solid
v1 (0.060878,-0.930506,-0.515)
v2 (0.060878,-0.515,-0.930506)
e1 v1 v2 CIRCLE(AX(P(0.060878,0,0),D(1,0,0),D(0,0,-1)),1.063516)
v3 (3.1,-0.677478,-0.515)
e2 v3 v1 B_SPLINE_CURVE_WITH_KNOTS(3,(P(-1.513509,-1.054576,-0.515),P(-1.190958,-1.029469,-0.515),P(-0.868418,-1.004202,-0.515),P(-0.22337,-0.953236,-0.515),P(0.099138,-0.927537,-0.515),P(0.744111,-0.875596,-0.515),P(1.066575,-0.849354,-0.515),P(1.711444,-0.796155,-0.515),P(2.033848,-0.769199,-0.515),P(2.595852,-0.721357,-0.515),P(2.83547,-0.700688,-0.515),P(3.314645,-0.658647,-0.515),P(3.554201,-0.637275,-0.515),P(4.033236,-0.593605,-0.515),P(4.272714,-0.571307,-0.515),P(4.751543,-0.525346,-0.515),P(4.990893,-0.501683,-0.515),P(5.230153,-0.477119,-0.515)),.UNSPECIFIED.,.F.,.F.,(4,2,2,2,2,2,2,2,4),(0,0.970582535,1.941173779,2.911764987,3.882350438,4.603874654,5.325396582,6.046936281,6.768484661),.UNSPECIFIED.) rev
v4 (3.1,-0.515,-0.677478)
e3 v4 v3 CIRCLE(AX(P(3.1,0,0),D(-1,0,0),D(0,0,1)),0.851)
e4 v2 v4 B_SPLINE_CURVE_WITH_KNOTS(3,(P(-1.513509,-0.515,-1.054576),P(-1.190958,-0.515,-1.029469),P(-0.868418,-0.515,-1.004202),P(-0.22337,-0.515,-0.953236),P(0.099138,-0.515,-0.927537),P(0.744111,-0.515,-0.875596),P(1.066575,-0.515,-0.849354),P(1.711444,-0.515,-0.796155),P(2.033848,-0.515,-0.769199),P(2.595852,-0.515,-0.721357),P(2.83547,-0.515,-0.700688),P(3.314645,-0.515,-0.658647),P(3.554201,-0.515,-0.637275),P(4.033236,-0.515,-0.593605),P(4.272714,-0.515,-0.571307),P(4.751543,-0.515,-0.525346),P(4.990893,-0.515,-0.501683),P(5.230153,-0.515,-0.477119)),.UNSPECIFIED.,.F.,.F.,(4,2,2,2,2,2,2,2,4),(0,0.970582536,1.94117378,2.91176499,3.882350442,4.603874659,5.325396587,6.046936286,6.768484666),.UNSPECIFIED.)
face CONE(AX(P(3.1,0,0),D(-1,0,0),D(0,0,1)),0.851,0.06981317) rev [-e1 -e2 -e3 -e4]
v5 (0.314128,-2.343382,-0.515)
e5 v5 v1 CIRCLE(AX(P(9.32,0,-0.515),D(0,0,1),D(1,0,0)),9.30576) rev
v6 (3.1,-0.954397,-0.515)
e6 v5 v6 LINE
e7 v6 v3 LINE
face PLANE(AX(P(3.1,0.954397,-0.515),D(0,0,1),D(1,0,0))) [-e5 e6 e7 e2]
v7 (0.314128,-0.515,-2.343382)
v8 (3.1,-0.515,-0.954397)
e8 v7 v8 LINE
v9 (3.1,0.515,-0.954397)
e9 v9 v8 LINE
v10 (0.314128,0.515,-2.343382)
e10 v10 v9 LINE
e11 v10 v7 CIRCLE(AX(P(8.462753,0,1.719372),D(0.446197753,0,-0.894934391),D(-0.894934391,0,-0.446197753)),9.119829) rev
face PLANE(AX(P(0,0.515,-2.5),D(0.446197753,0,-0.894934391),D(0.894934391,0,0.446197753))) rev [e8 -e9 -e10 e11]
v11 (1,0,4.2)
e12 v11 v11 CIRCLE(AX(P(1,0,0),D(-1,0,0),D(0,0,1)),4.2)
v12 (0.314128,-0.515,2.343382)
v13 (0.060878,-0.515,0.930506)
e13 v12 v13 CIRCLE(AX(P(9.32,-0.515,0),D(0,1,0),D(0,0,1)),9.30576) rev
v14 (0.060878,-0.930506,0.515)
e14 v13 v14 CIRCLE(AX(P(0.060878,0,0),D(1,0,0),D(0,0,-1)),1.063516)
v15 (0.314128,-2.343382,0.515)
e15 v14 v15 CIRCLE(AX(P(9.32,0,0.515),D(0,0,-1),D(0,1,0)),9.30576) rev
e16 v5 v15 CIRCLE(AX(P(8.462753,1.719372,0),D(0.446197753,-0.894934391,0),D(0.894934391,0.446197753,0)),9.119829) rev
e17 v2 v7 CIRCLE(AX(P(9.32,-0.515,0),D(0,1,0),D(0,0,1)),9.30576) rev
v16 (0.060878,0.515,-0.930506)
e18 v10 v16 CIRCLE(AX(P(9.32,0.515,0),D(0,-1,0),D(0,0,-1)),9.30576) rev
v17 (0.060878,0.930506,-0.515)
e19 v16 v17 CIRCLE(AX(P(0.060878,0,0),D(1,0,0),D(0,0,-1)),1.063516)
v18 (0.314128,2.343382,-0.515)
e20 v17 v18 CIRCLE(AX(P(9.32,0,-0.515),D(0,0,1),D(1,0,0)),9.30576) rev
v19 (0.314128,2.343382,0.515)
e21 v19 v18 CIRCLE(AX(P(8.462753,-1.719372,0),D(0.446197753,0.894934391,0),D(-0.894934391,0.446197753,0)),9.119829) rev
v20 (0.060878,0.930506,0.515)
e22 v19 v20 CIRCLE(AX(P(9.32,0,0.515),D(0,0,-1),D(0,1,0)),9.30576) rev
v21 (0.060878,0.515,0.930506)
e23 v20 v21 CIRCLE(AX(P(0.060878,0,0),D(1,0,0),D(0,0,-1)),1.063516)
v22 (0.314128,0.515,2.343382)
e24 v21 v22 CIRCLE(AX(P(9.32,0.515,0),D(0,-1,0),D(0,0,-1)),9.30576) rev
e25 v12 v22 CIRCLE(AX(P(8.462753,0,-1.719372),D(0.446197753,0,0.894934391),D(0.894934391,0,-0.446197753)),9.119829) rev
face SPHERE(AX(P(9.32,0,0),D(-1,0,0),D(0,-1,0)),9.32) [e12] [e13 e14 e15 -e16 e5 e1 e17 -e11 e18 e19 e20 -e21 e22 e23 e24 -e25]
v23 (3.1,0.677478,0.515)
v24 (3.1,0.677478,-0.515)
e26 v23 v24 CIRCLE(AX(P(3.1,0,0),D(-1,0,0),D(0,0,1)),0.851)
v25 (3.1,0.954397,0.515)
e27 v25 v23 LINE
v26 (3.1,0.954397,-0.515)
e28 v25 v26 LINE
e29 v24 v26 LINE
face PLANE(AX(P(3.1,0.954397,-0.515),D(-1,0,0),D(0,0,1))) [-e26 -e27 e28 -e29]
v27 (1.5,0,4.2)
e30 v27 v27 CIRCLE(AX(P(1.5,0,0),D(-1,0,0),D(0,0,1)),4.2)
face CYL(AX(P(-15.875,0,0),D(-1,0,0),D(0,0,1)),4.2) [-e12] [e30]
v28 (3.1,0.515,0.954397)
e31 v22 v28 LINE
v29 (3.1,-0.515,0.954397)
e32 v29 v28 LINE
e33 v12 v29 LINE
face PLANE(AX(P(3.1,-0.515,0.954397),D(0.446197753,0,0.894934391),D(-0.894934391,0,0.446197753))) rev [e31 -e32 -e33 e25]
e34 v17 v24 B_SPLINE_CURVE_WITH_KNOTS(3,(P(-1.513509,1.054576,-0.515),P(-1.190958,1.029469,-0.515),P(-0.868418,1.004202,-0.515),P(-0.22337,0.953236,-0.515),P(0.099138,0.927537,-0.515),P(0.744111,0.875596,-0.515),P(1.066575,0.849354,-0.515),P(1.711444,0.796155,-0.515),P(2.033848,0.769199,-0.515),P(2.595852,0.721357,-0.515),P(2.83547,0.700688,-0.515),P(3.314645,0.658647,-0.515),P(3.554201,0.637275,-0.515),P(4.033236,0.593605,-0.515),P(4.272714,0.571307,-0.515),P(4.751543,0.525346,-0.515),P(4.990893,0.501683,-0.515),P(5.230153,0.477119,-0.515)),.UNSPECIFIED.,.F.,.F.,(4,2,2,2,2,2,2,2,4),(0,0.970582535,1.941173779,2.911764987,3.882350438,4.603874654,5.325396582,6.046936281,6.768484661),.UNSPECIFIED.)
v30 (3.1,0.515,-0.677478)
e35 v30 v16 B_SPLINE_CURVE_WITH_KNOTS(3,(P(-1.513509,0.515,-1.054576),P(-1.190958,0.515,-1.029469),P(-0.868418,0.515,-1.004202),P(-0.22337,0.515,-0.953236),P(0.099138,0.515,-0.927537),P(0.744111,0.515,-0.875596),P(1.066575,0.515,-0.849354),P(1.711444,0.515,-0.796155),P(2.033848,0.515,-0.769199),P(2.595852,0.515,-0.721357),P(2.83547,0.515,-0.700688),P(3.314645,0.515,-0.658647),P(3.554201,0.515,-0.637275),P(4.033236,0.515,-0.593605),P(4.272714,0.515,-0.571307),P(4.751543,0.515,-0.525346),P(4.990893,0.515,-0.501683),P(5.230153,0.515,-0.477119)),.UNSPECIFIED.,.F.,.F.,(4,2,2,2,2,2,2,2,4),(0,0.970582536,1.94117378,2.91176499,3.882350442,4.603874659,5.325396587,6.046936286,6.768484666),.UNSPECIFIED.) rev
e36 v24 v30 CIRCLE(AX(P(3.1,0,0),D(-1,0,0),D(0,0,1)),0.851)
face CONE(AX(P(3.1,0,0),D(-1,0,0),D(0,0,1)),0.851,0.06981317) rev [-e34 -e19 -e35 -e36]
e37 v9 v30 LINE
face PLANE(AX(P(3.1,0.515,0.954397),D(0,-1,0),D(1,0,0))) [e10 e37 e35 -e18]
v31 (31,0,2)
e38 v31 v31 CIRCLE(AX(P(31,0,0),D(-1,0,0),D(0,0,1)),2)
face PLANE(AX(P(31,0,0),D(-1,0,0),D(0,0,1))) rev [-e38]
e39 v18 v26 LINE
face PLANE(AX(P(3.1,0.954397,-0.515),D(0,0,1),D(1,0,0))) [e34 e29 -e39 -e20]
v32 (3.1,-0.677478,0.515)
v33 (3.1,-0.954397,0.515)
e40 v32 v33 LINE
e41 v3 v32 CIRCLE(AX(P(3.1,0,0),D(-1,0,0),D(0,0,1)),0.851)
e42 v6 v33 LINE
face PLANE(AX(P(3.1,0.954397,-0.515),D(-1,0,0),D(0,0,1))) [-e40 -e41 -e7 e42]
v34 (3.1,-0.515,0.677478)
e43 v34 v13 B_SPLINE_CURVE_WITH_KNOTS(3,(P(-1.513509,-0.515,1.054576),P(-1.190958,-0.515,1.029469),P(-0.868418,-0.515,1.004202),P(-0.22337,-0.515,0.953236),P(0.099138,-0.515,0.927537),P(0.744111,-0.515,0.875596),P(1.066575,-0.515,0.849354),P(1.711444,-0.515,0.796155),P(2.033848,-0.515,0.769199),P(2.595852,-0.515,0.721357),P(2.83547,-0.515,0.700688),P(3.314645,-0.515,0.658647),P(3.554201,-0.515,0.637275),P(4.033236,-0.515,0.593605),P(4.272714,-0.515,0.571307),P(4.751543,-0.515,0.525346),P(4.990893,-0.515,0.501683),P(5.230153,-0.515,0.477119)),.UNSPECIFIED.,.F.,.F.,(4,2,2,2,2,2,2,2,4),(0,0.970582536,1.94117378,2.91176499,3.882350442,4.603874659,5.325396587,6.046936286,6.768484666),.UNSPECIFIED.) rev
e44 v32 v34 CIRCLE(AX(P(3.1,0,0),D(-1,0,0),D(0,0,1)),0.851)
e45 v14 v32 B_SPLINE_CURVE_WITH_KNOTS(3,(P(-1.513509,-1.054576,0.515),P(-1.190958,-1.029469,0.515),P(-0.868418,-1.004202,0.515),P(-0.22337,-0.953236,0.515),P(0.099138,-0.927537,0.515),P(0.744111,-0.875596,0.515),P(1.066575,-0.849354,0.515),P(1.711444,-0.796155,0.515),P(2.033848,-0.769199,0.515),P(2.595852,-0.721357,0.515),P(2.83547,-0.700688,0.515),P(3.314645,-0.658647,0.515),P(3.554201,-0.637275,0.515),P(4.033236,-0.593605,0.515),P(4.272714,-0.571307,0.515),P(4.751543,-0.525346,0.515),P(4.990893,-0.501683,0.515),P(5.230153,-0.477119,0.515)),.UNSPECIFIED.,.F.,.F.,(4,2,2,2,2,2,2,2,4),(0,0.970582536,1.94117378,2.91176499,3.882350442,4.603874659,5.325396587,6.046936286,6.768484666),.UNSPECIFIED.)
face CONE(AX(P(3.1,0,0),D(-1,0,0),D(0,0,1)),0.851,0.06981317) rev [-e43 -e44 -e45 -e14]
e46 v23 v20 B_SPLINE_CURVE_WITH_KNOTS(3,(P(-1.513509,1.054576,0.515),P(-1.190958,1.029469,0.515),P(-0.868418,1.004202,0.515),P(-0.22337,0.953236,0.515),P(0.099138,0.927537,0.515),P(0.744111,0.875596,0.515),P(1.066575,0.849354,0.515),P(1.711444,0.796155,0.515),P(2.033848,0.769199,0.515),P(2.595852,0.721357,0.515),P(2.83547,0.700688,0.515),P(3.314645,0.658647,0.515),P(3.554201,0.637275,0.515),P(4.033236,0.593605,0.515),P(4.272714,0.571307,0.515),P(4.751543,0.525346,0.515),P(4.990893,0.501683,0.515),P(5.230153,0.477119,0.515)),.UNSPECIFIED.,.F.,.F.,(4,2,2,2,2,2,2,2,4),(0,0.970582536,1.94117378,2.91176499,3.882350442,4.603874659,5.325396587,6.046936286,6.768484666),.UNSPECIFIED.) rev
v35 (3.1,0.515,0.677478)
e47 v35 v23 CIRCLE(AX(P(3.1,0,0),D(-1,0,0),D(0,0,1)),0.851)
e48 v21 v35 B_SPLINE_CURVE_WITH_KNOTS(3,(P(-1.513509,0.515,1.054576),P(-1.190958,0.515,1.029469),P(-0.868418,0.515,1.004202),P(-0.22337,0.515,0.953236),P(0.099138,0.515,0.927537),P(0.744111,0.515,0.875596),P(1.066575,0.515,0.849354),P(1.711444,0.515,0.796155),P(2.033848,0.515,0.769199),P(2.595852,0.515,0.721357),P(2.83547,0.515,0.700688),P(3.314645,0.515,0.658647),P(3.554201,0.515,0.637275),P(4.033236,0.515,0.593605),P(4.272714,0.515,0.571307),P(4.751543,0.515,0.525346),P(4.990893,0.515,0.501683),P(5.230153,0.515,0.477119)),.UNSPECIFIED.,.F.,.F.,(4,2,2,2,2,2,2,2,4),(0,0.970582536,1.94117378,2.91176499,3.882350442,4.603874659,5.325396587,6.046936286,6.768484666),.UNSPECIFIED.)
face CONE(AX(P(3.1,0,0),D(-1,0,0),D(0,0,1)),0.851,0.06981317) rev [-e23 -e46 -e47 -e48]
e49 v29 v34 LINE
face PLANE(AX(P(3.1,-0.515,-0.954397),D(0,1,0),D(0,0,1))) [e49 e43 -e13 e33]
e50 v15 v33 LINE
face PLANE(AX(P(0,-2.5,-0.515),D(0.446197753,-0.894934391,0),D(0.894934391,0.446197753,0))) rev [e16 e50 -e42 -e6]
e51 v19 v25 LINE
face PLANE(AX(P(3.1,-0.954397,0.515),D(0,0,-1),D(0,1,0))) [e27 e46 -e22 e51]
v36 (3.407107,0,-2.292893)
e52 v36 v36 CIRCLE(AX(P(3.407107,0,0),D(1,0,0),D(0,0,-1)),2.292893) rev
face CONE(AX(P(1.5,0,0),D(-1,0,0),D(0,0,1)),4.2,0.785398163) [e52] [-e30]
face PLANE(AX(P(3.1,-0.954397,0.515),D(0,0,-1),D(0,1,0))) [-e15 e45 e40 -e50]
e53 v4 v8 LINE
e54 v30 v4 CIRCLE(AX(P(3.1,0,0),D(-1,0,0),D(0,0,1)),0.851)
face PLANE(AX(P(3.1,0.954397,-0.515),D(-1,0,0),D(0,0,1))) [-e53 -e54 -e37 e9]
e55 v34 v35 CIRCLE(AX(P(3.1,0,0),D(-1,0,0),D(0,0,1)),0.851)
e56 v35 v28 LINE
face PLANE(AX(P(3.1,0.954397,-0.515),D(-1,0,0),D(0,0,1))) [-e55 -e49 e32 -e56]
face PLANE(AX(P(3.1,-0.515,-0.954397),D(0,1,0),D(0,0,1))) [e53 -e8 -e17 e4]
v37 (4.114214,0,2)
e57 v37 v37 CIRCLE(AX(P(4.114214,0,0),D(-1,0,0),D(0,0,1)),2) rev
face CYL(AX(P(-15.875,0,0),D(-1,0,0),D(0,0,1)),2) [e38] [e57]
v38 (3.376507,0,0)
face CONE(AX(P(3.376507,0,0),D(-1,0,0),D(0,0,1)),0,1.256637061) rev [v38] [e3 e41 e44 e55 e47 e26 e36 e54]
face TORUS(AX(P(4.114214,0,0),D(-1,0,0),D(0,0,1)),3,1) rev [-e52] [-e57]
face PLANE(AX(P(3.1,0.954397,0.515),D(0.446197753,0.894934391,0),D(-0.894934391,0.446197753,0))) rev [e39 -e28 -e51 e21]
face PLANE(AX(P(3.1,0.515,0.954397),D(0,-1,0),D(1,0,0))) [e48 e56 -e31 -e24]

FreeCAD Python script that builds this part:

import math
import FreeCAD as App
import Part
import Sketcher

V = App.Vector
Q = App.Units.Quantity


def edges_at(feature, points):
    """Names of the edges that pass closest to the given points."""
    edges = feature.Shape.Edges
    near = lambda p: min(range(len(edges)), key=lambda i: edges[i].distToShape(Part.Vertex(*p))[0])
    return sorted({f"Edge{near(p) + 1}" for p in points})


def add_polygon(sketch, points):
    """Adds a closed chain of lines whose ends are joined by coincident constraints."""
    first, n = sketch.GeometryCount, len(points)
    for a, b in zip(points, points[1:] + points[:1]):
        sketch.addGeometry(Part.LineSegment(App.Vector(*a, 0), App.Vector(*b, 0)), False)
    for i in range(n):
        sketch.addConstraint(Sketcher.Constraint("Coincident", first + i, 2, first + (i + 1) % n, 1))

doc = App.newDocument("Part")
body = doc.addObject("PartDesign::Body", "Body")

# Sketch on XY plane
sketch1 = body.newObject("Sketcher::SketchObject", "Sketch")
sketch1.AttachmentSupport = (doc.getObject("XY_Plane"), [""])
sketch1.MapMode = "FlatFace"
sketch1.addGeometry([
    Part.LineSegment(V(0, 0, 0), V(31, 0, 0)),  # 0
    Part.LineSegment(V(31, 0, 0), V(31, 2, 0)),  # 1
    Part.LineSegment(V(31, 2, 0), V(3.7, 2, 0)),  # 2
    Part.LineSegment(V(3.7, 2, 0), V(1.5, 4.2, 0)),  # 3
    Part.LineSegment(V(1.5, 4.2, 0), V(1, 4.2, 0)),  # 4
    Part.ArcOfCircle(Part.Circle(V(9.32, 0, 0), V(0, 0, 1), 9.32), math.radians(153.215004), math.radians(180)),  # 5
], False)
sketch1.addConstraint([
    Sketcher.Constraint("Coincident", 0, 2, 1, 1),
    Sketcher.Constraint("Coincident", 1, 2, 2, 1),
    Sketcher.Constraint("Coincident", 2, 2, 3, 1),
    Sketcher.Constraint("Coincident", 3, 2, 4, 1),
    Sketcher.Constraint("Coincident", 4, 2, 5, 1),
    Sketcher.Constraint("Coincident", 5, 2, 0, 1),
    Sketcher.Constraint("Horizontal", 0),
    Sketcher.Constraint("Vertical", 1),
    Sketcher.Constraint("Horizontal", 2),
    Sketcher.Constraint("Horizontal", 4),
    Sketcher.Constraint("Coincident", 5, 2, -1, 1),
    Sketcher.Constraint("PointOnObject", 5, 3, -1),
    Sketcher.Constraint("DistanceX", 0, 1, 0, 2, 31.0),
    Sketcher.Constraint("DistanceY", 1, 1, 1, 2, 2.0),
    Sketcher.Constraint("Angle", 3, Q("135 deg")),
    Sketcher.Constraint("Radius", 5, 9.32),
    Sketcher.Constraint("DistanceX", 2, 2, 2, 1, 27.3),
    Sketcher.Constraint("DistanceX", 4, 2, 4, 1, 0.5),
])
revolution = body.newObject("PartDesign::Revolution", "Revolution")
revolution.Profile = sketch1
revolution.ReferenceAxis = (sketch1, ["H_Axis"])
revolution.Angle = 360
doc.recompute()

fillet = body.newObject("PartDesign::Fillet", "Fillet")
fillet.Base = (revolution, edges_at(revolution, [(3.7, 0, -2)]))
fillet.Radius = 1

# Sketch on YZ plane
sketch2 = body.newObject("Sketcher::SketchObject", "Sketch001")
sketch2.AttachmentSupport = (doc.getObject("YZ_Plane"), [""])
sketch2.MapMode = "FlatFace"
add_polygon(sketch2, [(-2.5, 0.515), (-2.5, -0.515), (2.5, -0.515), (2.5, 0.515)])  # lines 0-3
sketch2.addConstraint([
    Sketcher.Constraint("Vertical", 0),
    Sketcher.Constraint("Horizontal", 1),
    Sketcher.Constraint("Vertical", 2),
    Sketcher.Constraint("Horizontal", 3),
    Sketcher.Constraint("Symmetric", 0, 2, 2, 2, -1, 1),
    Sketcher.Constraint("DistanceX", 1, 1, 1, 2, 5.0),
    Sketcher.Constraint("DistanceY", 0, 2, 0, 1, 1.03),
])

# Sketch on YZ plane
sketch3 = body.newObject("Sketcher::SketchObject", "Sketch002")
sketch3.AttachmentSupport = (doc.getObject("YZ_Plane"), [""])
sketch3.MapMode = "FlatFace"
sketch3.AttachmentOffset = App.Placement(V(0, 0, 3.1), App.Rotation())
add_polygon(sketch3, [(-0.954397, 0.515), (-0.954397, -0.515), (0.954397, -0.515), (0.954397, 0.515)])  # lines 0-3
sketch3.addConstraint([
    Sketcher.Constraint("Vertical", 0),
    Sketcher.Constraint("Horizontal", 1),
    Sketcher.Constraint("Vertical", 2),
    Sketcher.Constraint("Horizontal", 3),
    Sketcher.Constraint("Symmetric", 0, 2, 2, 2, -1, 1),
    Sketcher.Constraint("DistanceY", 0, 2, 0, 1, 1.03),
    Sketcher.Constraint("DistanceX", 1, 1, 1, 2, 1.908795),
])

subtractiveloft = body.newObject("PartDesign::SubtractiveLoft", "SubtractiveLoft")
subtractiveloft.Profile = sketch2
subtractiveloft.Sections = [sketch3]
doc.recompute()

polarpattern = body.newObject("PartDesign::PolarPattern", "PolarPattern")
polarpattern.Originals = [subtractiveloft]
polarpattern.Axis = (doc.getObject("X_Axis"), [""])
polarpattern.Angle = 90
polarpattern.Occurrences = 2
body.Tip = polarpattern

# Sketch on XY plane
sketch4 = body.newObject("Sketcher::SketchObject", "Sketch003")
sketch4.AttachmentSupport = (doc.getObject("XY_Plane"), [""])
sketch4.MapMode = "FlatFace"
add_polygon(sketch4, [(0, 1.067773), (0, 0), (3.376507, 0), (3.1, 0.851)])  # lines 0-3
sketch4.addConstraint([
    Sketcher.Constraint("Vertical", 0),
    Sketcher.Constraint("Horizontal", 1),
    Sketcher.Constraint("Coincident", 0, 2, -1, 1),
    Sketcher.Constraint("Angle", 2, Q("108 deg")),
    Sketcher.Constraint("Angle", 3, Q("176 deg")),
    Sketcher.Constraint("DistanceX", -1, 1, 2, 2, 3.1),
    Sketcher.Constraint("DistanceY", -1, 1, 2, 2, 0.851),
])
groove = body.newObject("PartDesign::Groove", "Groove")
groove.Profile = sketch4
groove.ReferenceAxis = (sketch4, ["H_Axis"])
groove.Angle = 360

doc.recompute()
